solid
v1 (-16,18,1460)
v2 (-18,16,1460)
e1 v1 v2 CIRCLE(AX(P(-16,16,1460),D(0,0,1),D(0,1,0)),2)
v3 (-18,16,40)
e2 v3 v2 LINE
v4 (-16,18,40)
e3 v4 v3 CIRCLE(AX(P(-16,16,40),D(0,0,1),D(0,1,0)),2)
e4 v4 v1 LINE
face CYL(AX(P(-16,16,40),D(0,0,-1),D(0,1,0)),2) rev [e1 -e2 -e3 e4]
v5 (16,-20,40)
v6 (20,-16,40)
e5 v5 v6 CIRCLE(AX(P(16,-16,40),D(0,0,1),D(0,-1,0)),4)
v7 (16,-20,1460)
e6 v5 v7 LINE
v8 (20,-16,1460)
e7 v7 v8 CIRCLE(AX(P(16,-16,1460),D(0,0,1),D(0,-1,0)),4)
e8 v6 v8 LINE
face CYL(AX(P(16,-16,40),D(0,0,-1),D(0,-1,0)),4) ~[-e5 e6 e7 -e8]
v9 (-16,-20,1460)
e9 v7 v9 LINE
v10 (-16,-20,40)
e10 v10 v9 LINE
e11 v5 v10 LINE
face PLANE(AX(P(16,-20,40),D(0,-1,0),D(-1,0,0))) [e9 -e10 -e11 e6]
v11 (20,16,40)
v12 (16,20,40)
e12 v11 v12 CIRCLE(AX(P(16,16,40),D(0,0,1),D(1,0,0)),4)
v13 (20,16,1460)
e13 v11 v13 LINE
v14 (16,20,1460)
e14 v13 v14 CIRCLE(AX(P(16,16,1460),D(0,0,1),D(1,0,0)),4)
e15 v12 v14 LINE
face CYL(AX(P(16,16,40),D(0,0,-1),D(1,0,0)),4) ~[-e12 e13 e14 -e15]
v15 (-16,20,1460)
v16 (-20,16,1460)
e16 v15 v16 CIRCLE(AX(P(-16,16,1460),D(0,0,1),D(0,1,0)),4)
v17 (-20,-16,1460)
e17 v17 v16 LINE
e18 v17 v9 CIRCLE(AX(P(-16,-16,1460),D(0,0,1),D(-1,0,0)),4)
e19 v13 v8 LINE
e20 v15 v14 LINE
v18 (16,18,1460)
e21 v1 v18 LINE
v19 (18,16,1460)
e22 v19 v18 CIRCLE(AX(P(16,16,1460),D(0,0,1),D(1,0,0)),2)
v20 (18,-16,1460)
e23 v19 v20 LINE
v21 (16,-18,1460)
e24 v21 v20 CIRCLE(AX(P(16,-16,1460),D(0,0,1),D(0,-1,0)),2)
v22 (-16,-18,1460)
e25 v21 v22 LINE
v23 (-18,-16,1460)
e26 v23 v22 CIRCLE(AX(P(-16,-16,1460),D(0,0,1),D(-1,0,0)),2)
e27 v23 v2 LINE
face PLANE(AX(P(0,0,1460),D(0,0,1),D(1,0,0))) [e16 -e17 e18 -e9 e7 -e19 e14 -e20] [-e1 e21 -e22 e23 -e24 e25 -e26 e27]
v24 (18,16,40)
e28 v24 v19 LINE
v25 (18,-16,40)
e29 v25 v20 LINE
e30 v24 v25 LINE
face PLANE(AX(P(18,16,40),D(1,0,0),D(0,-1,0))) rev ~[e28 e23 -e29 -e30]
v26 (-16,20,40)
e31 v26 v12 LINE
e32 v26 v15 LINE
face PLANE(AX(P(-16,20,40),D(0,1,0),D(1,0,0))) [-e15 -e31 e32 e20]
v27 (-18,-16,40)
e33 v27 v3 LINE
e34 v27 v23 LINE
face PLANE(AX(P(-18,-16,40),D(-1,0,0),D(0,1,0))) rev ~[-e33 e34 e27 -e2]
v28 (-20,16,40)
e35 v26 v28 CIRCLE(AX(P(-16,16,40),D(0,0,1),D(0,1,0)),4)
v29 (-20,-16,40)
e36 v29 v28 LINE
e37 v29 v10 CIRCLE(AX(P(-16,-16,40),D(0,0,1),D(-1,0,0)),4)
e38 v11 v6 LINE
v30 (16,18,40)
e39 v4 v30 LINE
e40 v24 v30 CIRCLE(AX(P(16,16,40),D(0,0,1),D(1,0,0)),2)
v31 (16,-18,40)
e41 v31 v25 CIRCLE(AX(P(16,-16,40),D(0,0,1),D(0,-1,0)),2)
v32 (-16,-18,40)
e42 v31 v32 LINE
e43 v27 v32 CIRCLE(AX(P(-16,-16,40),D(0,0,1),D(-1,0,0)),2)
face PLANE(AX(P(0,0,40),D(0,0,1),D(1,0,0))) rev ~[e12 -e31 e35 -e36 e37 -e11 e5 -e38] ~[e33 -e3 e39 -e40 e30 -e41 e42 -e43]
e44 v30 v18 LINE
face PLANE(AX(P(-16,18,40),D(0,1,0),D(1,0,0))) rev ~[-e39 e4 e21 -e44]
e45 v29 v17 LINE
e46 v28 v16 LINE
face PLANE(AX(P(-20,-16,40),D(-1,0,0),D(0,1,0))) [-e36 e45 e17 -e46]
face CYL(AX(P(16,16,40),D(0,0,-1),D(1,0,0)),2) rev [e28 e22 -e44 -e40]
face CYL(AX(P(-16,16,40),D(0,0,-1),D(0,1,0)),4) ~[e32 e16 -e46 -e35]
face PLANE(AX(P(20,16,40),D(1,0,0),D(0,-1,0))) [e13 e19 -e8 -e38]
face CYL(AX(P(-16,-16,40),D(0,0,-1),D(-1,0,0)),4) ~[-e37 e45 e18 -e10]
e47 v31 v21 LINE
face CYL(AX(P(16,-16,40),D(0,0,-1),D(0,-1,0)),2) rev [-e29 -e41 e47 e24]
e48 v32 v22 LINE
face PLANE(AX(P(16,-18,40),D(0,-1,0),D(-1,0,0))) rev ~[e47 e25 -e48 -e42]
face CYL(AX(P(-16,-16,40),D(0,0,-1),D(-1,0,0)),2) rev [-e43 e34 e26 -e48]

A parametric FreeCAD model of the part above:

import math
import FreeCAD as App
import Part
import Sketcher
from FreeCAD import Vector

doc = App.newDocument("Part")
params = doc.addObject("Spreadsheet::Sheet", "Params")
for row, (alias, value) in enumerate([
    ("sketch1_radius", "4 mm"),
    ("sketch1_radius2", "2 mm"),
    ("pad1_length", "1420 mm"),
], start=1):
    params.set(f"A{row}", alias)
    params.set(f"B{row}", "=" + value)
    params.setAlias(f"B{row}", alias)

body = doc.addObject("PartDesign::Body", "Body")

# Sketch on XY plane
sketch1 = doc.addObject("Sketcher::SketchObject", "Sketch")
body.addObject(sketch1)
sketch1.AttachmentSupport = (doc.XY_Plane, [""])
sketch1.MapMode = "FlatFace"
sketch1.AttachmentOffset = App.Placement(Vector(0, 0, 40), App.Rotation())
sketch1.addGeometry([
    Part.LineSegment(Vector(-20, 16, 0), Vector(-20, -16, 0)),  # 0
    Part.ArcOfCircle(Part.Circle(Vector(-16, -16, 0), Vector(0, 0, 1), 4), math.radians(180), math.radians(270)),  # 1
    Part.LineSegment(Vector(-16, -20, 0), Vector(16, -20, 0)),  # 2
    Part.ArcOfCircle(Part.Circle(Vector(16, -16, 0), Vector(0, 0, 1), 4), math.radians(-90), math.radians(0)),  # 3
    Part.LineSegment(Vector(20, -16, 0), Vector(20, 16, 0)),  # 4
    Part.ArcOfCircle(Part.Circle(Vector(16, 16, 0), Vector(0, 0, 1), 4), math.radians(0), math.radians(90)),  # 5
    Part.LineSegment(Vector(16, 20, 0), Vector(-16, 20, 0)),  # 6
    Part.ArcOfCircle(Part.Circle(Vector(-16, 16, 0), Vector(0, 0, 1), 4), math.radians(90), math.radians(180)),  # 7
    Part.ArcOfCircle(Part.Circle(Vector(-16, 16, 0), Vector(0, 0, 1), 2), math.radians(90), math.radians(180)),  # 8
    Part.LineSegment(Vector(-16, 18, 0), Vector(16, 18, 0)),  # 9
    Part.ArcOfCircle(Part.Circle(Vector(16, 16, 0), Vector(0, 0, 1), 2), math.radians(0), math.radians(90)),  # 10
    Part.LineSegment(Vector(18, 16, 0), Vector(18, -16, 0)),  # 11
    Part.ArcOfCircle(Part.Circle(Vector(16, -16, 0), Vector(0, 0, 1), 2), math.radians(-90), math.radians(0)),  # 12
    Part.LineSegment(Vector(16, -18, 0), Vector(-16, -18, 0)),  # 13
    Part.ArcOfCircle(Part.Circle(Vector(-16, -16, 0), Vector(0, 0, 1), 2), math.radians(180), math.radians(270)),  # 14
    Part.LineSegment(Vector(-18, -16, 0), Vector(-18, 16, 0)),  # 15
], False)
sketch1.addConstraint([
    Sketcher.Constraint("Tangent", 0, 2, 1, 1),
    Sketcher.Constraint("Tangent", 1, 2, 2, 1),
    Sketcher.Constraint("Tangent", 2, 2, 3, 1),
    Sketcher.Constraint("Tangent", 3, 2, 4, 1),
    Sketcher.Constraint("Tangent", 4, 2, 5, 1),
    Sketcher.Constraint("Tangent", 5, 2, 6, 1),
    Sketcher.Constraint("Tangent", 6, 2, 7, 1),
    Sketcher.Constraint("Tangent", 7, 2, 0, 1),
    Sketcher.Constraint("Tangent", 8, 1, 9, 1),
    Sketcher.Constraint("Tangent", 9, 2, 10, 2),
    Sketcher.Constraint("Tangent", 10, 1, 11, 1),
    Sketcher.Constraint("Tangent", 11, 2, 12, 2),
    Sketcher.Constraint("Tangent", 12, 1, 13, 1),
    Sketcher.Constraint("Tangent", 13, 2, 14, 2),
    Sketcher.Constraint("Tangent", 14, 1, 15, 1),
    Sketcher.Constraint("Tangent", 15, 2, 8, 2),
    Sketcher.Constraint("Vertical", 0),
    Sketcher.Constraint("Horizontal", 2),
    Sketcher.Constraint("Vertical", 4),
    Sketcher.Constraint("Horizontal", 6),
    Sketcher.Constraint("Horizontal", 9),
    Sketcher.Constraint("Vertical", 11),
    Sketcher.Constraint("Horizontal", 13),
    Sketcher.Constraint("Vertical", 15),
    Sketcher.Constraint("Coincident", 8, 3, 7, 3),
    Sketcher.Constraint("Coincident", 10, 3, 5, 3),
    Sketcher.Constraint("Coincident", 12, 3, 3, 3),
    Sketcher.Constraint("Equal", 1, 3),
    Sketcher.Constraint("Equal", 3, 5),
    Sketcher.Constraint("Equal", 5, 7),
    Sketcher.Constraint("Equal", 12, 14),
    Sketcher.Constraint("Symmetric", 1, 3, 5, 3, -1, 1),
    Sketcher.Constraint("Equal", 13, 0),
    Sketcher.Constraint("Radius", 1, 4.0),
    Sketcher.Constraint("Radius", 8, 2.0),
    Sketcher.Constraint("DistanceX", 0, 2, -1, 1, 20.0),
])
sketch1.setExpression("Constraints[33]", "Params.sketch1_radius")
sketch1.setExpression("Constraints[34]", "Params.sketch1_radius2")
pad1 = doc.addObject("PartDesign::Pad", "Pad")
body.addObject(pad1)
pad1.Profile = sketch1
pad1.setExpression("Length", "Params.pad1_length")

doc.recompute()
